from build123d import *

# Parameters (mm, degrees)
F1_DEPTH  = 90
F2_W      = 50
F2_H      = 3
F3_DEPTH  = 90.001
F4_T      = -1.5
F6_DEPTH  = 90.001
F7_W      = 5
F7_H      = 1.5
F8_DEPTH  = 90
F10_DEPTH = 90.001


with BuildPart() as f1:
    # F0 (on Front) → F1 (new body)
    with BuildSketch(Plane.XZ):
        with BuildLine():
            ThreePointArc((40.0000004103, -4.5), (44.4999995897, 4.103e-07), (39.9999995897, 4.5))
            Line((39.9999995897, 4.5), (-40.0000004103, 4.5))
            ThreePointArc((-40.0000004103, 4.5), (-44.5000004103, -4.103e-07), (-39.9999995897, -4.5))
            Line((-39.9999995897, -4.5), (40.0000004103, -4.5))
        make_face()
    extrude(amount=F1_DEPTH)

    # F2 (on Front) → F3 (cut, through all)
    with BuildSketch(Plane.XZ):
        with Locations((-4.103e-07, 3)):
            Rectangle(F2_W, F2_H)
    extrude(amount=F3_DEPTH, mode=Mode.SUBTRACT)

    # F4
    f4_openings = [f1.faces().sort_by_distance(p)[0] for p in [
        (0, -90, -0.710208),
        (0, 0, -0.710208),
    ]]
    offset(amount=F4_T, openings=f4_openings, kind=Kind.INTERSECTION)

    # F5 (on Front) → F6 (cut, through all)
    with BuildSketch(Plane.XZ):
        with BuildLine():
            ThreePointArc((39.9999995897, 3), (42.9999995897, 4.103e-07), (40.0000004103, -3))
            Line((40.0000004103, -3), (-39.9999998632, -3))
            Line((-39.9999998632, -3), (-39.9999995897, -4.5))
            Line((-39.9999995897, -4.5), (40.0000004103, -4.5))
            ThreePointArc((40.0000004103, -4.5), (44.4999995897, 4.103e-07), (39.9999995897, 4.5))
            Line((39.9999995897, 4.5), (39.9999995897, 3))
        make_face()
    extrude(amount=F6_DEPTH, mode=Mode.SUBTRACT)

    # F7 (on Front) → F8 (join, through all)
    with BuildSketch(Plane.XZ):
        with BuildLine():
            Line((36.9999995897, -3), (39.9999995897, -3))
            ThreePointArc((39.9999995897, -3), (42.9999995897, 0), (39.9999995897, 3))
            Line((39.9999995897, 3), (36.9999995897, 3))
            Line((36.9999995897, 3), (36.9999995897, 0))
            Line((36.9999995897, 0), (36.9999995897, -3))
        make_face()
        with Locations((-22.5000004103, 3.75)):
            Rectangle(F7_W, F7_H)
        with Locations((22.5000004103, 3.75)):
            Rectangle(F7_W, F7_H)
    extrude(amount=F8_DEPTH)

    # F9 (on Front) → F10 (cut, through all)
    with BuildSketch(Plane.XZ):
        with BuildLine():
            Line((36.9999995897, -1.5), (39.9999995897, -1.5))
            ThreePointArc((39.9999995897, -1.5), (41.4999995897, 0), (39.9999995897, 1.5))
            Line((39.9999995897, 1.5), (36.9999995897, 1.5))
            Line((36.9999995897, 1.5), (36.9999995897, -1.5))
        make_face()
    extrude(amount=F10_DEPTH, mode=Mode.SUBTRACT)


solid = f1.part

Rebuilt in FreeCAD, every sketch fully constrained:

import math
import FreeCAD as App
import Part
import Sketcher

V = App.Vector


def faces_at(feature, points):
    """Names of the faces that lie closest to the given points."""
    faces = feature.Shape.Faces
    near = lambda p: min(range(len(faces)), key=lambda i: faces[i].distToShape(Part.Vertex(*p))[0])
    return sorted({f"Face{near(p) + 1}" for p in points})

doc = App.newDocument("Part")
body = doc.addObject("PartDesign::Body", "Body")

sketch1 = body.newObject("Sketcher::SketchObject", "Sketch")
sketch1.AttachmentSupport = (doc.getObject("XZ_Plane"), [""])
sketch1.MapMode = "FlatFace"
sketch1.addGeometry(Part.ArcOfCircle(Part.Circle(V(40, 0, 0), V(0, 0, 1), 4.5), math.radians(-90), math.radians(90)), False)
sketch1.addGeometry(Part.LineSegment(V(40, 4.5, 0), V(-40, 4.5, 0)), False)
sketch1.addGeometry(Part.ArcOfCircle(Part.Circle(V(-40, 0, 0), V(0, 0, 1), 4.5), math.radians(90), math.radians(270)), False)
sketch1.addGeometry(Part.LineSegment(V(-40, -4.5, 0), V(40, -4.5, 0)), False)
sketch1.addConstraint(Sketcher.Constraint("Tangent", 0, 2, 1, 1))
sketch1.addConstraint(Sketcher.Constraint("Tangent", 1, 2, 2, 1))
sketch1.addConstraint(Sketcher.Constraint("Tangent", 2, 2, 3, 1))
sketch1.addConstraint(Sketcher.Constraint("Tangent", 3, 2, 0, 1))
sketch1.addConstraint(Sketcher.Constraint("Horizontal", 1))
sketch1.addConstraint(Sketcher.Constraint("Horizontal", 3))
sketch1.addConstraint(Sketcher.Constraint("Symmetric", 0, 3, 2, 3, -1, 1))
sketch1.addConstraint(Sketcher.Constraint("Radius", 0, 4.5))
sketch1.addConstraint(Sketcher.Constraint("DistanceX", 1, 2, 1, 1, 80.0))
pad1 = body.newObject("PartDesign::Pad", "Pad")
pad1.Profile = sketch1
pad1.Length = 90

sketch2 = body.newObject("Sketcher::SketchObject", "Sketch001")
sketch2.AttachmentSupport = (doc.getObject("XZ_Plane"), [""])
sketch2.MapMode = "FlatFace"
sketch2.addGeometry(Part.LineSegment(V(-25, 4.5, 0), V(-25, 1.5, 0)), False)
sketch2.addGeometry(Part.LineSegment(V(-25, 1.5, 0), V(25, 1.5, 0)), False)
sketch2.addGeometry(Part.LineSegment(V(25, 1.5, 0), V(25, 4.5, 0)), False)
sketch2.addGeometry(Part.LineSegment(V(25, 4.5, 0), V(-25, 4.5, 0)), False)
sketch2.addConstraint(Sketcher.Constraint("Coincident", 0, 2, 1, 1))
sketch2.addConstraint(Sketcher.Constraint("Coincident", 1, 2, 2, 1))
sketch2.addConstraint(Sketcher.Constraint("Coincident", 2, 2, 3, 1))
sketch2.addConstraint(Sketcher.Constraint("Coincident", 3, 2, 0, 1))
sketch2.addConstraint(Sketcher.Constraint("Vertical", 0))
sketch2.addConstraint(Sketcher.Constraint("Horizontal", 1))
sketch2.addConstraint(Sketcher.Constraint("Vertical", 2))
sketch2.addConstraint(Sketcher.Constraint("Horizontal", 3))
sketch2.addConstraint(Sketcher.Constraint("DistanceX", 1, 1, 1, 2, 50.0))
sketch2.addConstraint(Sketcher.Constraint("DistanceY", 0, 2, 0, 1, 3.0))
sketch2.addConstraint(Sketcher.Constraint("DistanceX", 0, 2, -1, 1, 25.0))
sketch2.addConstraint(Sketcher.Constraint("DistanceY", -1, 1, 0, 2, 1.5))
pocket1 = body.newObject("PartDesign::Pocket", "Pocket")
pocket1.Profile = sketch2
pocket1.Type = "ThroughAll"
pocket1.Reversed = True
doc.recompute()

thickness = body.newObject("PartDesign::Thickness", "Thickness")
thickness.Base = (pocket1, faces_at(pocket1, [(0, -90, 0), (0, 0, 0)]))
thickness.Value = 1.5
thickness.Reversed = True
thickness.Join = "Intersection"

sketch3 = body.newObject("Sketcher::SketchObject", "Sketch002")
sketch3.AttachmentSupport = (doc.getObject("XZ_Plane"), [""])
sketch3.MapMode = "FlatFace"
sketch3.addGeometry(Part.ArcOfCircle(Part.Circle(V(40, 0, 0), V(0, 0, 1), 3), math.radians(-90), math.radians(90)), False)
sketch3.addGeometry(Part.LineSegment(V(40, -3, 0), V(-40, -3, 0)), False)
sketch3.addGeometry(Part.LineSegment(V(-40, -3, 0), V(-40, -4.5, 0)), False)
sketch3.addGeometry(Part.LineSegment(V(-40, -4.5, 0), V(40, -4.5, 0)), False)
sketch3.addGeometry(Part.ArcOfCircle(Part.Circle(V(40, 0, 0), V(0, 0, 1), 4.5), math.radians(-90), math.radians(90)), False)
sketch3.addGeometry(Part.LineSegment(V(40, 4.5, 0), V(40, 3, 0)), False)
sketch3.addConstraint(Sketcher.Constraint("Tangent", 0, 1, 1, 1))
sketch3.addConstraint(Sketcher.Constraint("Coincident", 1, 2, 2, 1))
sketch3.addConstraint(Sketcher.Constraint("Coincident", 2, 2, 3, 1))
sketch3.addConstraint(Sketcher.Constraint("Tangent", 3, 2, 4, 1))
sketch3.addConstraint(Sketcher.Constraint("Coincident", 4, 2, 5, 1))
sketch3.addConstraint(Sketcher.Constraint("Coincident", 5, 2, 0, 2))
sketch3.addConstraint(Sketcher.Constraint("Horizontal", 1))
sketch3.addConstraint(Sketcher.Constraint("Vertical", 2))
sketch3.addConstraint(Sketcher.Constraint("Horizontal", 3))
sketch3.addConstraint(Sketcher.Constraint("Vertical", 5))
sketch3.addConstraint(Sketcher.Constraint("Coincident", 4, 3, 0, 3))
sketch3.addConstraint(Sketcher.Constraint("Symmetric", 2, 2, 4, 2, -1, 1))
sketch3.addConstraint(Sketcher.Constraint("Vertical", 3, 2, 4, 2))
sketch3.addConstraint(Sketcher.Constraint("Radius", 0, 3.0))
sketch3.addConstraint(Sketcher.Constraint("Radius", 4, 4.5))
sketch3.addConstraint(Sketcher.Constraint("DistanceX", 1, 2, 1, 1, 80.0))
pocket2 = body.newObject("PartDesign::Pocket", "Pocket001")
pocket2.Profile = sketch3
pocket2.Type = "ThroughAll"
pocket2.Reversed = True

sketch4 = body.newObject("Sketcher::SketchObject", "Sketch003")
sketch4.AttachmentSupport = (doc.getObject("XZ_Plane"), [""])
sketch4.MapMode = "FlatFace"
sketch4.addGeometry(Part.LineSegment(V(37, -3, 0), V(40, -3, 0)), False)
sketch4.addGeometry(Part.ArcOfCircle(Part.Circle(V(40, 0, 0), V(0, 0, 1), 3), math.radians(-90), math.radians(90)), False)
sketch4.addGeometry(Part.LineSegment(V(40, 3, 0), V(37, 3, 0)), False)
sketch4.addGeometry(Part.LineSegment(V(37, 3, 0), V(37, -3, 0)), False)
sketch4.addGeometry(Part.LineSegment(V(-25, 4.5, 0), V(-25, 3, 0)), False)
sketch4.addGeometry(Part.LineSegment(V(-25, 3, 0), V(-20, 3, 0)), False)
sketch4.addGeometry(Part.LineSegment(V(-20, 3, 0), V(-20, 4.5, 0)), False)
sketch4.addGeometry(Part.LineSegment(V(-20, 4.5, 0), V(-25, 4.5, 0)), False)
sketch4.addGeometry(Part.LineSegment(V(20, 4.5, 0), V(20, 3, 0)), False)
sketch4.addGeometry(Part.LineSegment(V(20, 3, 0), V(25, 3, 0)), False)
sketch4.addGeometry(Part.LineSegment(V(25, 3, 0), V(25, 4.5, 0)), False)
sketch4.addGeometry(Part.LineSegment(V(25, 4.5, 0), V(20, 4.5, 0)), False)
sketch4.addConstraint(Sketcher.Constraint("Tangent", 0, 2, 1, 1))
sketch4.addConstraint(Sketcher.Constraint("Tangent", 1, 2, 2, 1))
sketch4.addConstraint(Sketcher.Constraint("Coincident", 2, 2, 3, 1))
sketch4.addConstraint(Sketcher.Constraint("Coincident", 3, 2, 0, 1))
sketch4.addConstraint(Sketcher.Constraint("Coincident", 4, 2, 5, 1))
sketch4.addConstraint(Sketcher.Constraint("Coincident", 5, 2, 6, 1))
sketch4.addConstraint(Sketcher.Constraint("Coincident", 6, 2, 7, 1))
sketch4.addConstraint(Sketcher.Constraint("Coincident", 7, 2, 4, 1))
sketch4.addConstraint(Sketcher.Constraint("Coincident", 8, 2, 9, 1))
sketch4.addConstraint(Sketcher.Constraint("Coincident", 9, 2, 10, 1))
sketch4.addConstraint(Sketcher.Constraint("Coincident", 10, 2, 11, 1))
sketch4.addConstraint(Sketcher.Constraint("Coincident", 11, 2, 8, 1))
sketch4.addConstraint(Sketcher.Constraint("Horizontal", 0))
sketch4.addConstraint(Sketcher.Constraint("Horizontal", 2))
sketch4.addConstraint(Sketcher.Constraint("Vertical", 3))
sketch4.addConstraint(Sketcher.Constraint("Vertical", 4))
sketch4.addConstraint(Sketcher.Constraint("Horizontal", 5))
sketch4.addConstraint(Sketcher.Constraint("Vertical", 6))
sketch4.addConstraint(Sketcher.Constraint("Horizontal", 7))
sketch4.addConstraint(Sketcher.Constraint("Vertical", 8))
sketch4.addConstraint(Sketcher.Constraint("Horizontal", 9))
sketch4.addConstraint(Sketcher.Constraint("Vertical", 10))
sketch4.addConstraint(Sketcher.Constraint("Horizontal", 11))
sketch4.addConstraint(Sketcher.Constraint("Symmetric", 5, 2, 8, 2, -2))
sketch4.addConstraint(Sketcher.Constraint("Symmetric", 7, 2, 10, 2, -2))
sketch4.addConstraint(Sketcher.Constraint("PointOnObject", 1, 3, -1))
sketch4.addConstraint(Sketcher.Constraint("Horizontal", 2, 2, 4, 2))
sketch4.addConstraint(Sketcher.Constraint("Radius", 1, 3.0))
sketch4.addConstraint(Sketcher.Constraint("DistanceX", 0, 1, 0, 2, 3.0))
sketch4.addConstraint(Sketcher.Constraint("DistanceX", 5, 1, 5, 2, 5.0))
sketch4.addConstraint(Sketcher.Constraint("DistanceY", 4, 2, 4, 1, 1.5))
sketch4.addConstraint(Sketcher.Constraint("DistanceX", -1, 1, 1, 3, 40.0))
sketch4.addConstraint(Sketcher.Constraint("DistanceX", 4, 2, -1, 1, 25.0))
pad2 = body.newObject("PartDesign::Pad", "Pad001")
pad2.Profile = sketch4
pad2.Length = 90

sketch5 = body.newObject("Sketcher::SketchObject", "Sketch004")
sketch5.AttachmentSupport = (doc.getObject("XZ_Plane"), [""])
sketch5.MapMode = "FlatFace"
sketch5.addGeometry(Part.LineSegment(V(37, -1.5, 0), V(40, -1.5, 0)), False)
sketch5.addGeometry(Part.ArcOfCircle(Part.Circle(V(40, 0, 0), V(0, 0, 1), 1.5), math.radians(-90), math.radians(90)), False)
sketch5.addGeometry(Part.LineSegment(V(40, 1.5, 0), V(37, 1.5, 0)), False)
sketch5.addGeometry(Part.LineSegment(V(37, 1.5, 0), V(37, -1.5, 0)), False)
sketch5.addConstraint(Sketcher.Constraint("Tangent", 0, 2, 1, 1))
sketch5.addConstraint(Sketcher.Constraint("Tangent", 1, 2, 2, 1))
sketch5.addConstraint(Sketcher.Constraint("Coincident", 2, 2, 3, 1))
sketch5.addConstraint(Sketcher.Constraint("Coincident", 3, 2, 0, 1))
sketch5.addConstraint(Sketcher.Constraint("Horizontal", 0))
sketch5.addConstraint(Sketcher.Constraint("Horizontal", 2))
sketch5.addConstraint(Sketcher.Constraint("Vertical", 3))
sketch5.addConstraint(Sketcher.Constraint("PointOnObject", 1, 3, -1))
sketch5.addConstraint(Sketcher.Constraint("Equal", 2, 3))
sketch5.addConstraint(Sketcher.Constraint("Radius", 1, 1.5))
sketch5.addConstraint(Sketcher.Constraint("DistanceX", -1, 1, 1, 3, 40.0))
pocket3 = body.newObject("PartDesign::Pocket", "Pocket002")
pocket3.Profile = sketch5
pocket3.Type = "ThroughAll"
pocket3.Reversed = True

doc.recompute()
